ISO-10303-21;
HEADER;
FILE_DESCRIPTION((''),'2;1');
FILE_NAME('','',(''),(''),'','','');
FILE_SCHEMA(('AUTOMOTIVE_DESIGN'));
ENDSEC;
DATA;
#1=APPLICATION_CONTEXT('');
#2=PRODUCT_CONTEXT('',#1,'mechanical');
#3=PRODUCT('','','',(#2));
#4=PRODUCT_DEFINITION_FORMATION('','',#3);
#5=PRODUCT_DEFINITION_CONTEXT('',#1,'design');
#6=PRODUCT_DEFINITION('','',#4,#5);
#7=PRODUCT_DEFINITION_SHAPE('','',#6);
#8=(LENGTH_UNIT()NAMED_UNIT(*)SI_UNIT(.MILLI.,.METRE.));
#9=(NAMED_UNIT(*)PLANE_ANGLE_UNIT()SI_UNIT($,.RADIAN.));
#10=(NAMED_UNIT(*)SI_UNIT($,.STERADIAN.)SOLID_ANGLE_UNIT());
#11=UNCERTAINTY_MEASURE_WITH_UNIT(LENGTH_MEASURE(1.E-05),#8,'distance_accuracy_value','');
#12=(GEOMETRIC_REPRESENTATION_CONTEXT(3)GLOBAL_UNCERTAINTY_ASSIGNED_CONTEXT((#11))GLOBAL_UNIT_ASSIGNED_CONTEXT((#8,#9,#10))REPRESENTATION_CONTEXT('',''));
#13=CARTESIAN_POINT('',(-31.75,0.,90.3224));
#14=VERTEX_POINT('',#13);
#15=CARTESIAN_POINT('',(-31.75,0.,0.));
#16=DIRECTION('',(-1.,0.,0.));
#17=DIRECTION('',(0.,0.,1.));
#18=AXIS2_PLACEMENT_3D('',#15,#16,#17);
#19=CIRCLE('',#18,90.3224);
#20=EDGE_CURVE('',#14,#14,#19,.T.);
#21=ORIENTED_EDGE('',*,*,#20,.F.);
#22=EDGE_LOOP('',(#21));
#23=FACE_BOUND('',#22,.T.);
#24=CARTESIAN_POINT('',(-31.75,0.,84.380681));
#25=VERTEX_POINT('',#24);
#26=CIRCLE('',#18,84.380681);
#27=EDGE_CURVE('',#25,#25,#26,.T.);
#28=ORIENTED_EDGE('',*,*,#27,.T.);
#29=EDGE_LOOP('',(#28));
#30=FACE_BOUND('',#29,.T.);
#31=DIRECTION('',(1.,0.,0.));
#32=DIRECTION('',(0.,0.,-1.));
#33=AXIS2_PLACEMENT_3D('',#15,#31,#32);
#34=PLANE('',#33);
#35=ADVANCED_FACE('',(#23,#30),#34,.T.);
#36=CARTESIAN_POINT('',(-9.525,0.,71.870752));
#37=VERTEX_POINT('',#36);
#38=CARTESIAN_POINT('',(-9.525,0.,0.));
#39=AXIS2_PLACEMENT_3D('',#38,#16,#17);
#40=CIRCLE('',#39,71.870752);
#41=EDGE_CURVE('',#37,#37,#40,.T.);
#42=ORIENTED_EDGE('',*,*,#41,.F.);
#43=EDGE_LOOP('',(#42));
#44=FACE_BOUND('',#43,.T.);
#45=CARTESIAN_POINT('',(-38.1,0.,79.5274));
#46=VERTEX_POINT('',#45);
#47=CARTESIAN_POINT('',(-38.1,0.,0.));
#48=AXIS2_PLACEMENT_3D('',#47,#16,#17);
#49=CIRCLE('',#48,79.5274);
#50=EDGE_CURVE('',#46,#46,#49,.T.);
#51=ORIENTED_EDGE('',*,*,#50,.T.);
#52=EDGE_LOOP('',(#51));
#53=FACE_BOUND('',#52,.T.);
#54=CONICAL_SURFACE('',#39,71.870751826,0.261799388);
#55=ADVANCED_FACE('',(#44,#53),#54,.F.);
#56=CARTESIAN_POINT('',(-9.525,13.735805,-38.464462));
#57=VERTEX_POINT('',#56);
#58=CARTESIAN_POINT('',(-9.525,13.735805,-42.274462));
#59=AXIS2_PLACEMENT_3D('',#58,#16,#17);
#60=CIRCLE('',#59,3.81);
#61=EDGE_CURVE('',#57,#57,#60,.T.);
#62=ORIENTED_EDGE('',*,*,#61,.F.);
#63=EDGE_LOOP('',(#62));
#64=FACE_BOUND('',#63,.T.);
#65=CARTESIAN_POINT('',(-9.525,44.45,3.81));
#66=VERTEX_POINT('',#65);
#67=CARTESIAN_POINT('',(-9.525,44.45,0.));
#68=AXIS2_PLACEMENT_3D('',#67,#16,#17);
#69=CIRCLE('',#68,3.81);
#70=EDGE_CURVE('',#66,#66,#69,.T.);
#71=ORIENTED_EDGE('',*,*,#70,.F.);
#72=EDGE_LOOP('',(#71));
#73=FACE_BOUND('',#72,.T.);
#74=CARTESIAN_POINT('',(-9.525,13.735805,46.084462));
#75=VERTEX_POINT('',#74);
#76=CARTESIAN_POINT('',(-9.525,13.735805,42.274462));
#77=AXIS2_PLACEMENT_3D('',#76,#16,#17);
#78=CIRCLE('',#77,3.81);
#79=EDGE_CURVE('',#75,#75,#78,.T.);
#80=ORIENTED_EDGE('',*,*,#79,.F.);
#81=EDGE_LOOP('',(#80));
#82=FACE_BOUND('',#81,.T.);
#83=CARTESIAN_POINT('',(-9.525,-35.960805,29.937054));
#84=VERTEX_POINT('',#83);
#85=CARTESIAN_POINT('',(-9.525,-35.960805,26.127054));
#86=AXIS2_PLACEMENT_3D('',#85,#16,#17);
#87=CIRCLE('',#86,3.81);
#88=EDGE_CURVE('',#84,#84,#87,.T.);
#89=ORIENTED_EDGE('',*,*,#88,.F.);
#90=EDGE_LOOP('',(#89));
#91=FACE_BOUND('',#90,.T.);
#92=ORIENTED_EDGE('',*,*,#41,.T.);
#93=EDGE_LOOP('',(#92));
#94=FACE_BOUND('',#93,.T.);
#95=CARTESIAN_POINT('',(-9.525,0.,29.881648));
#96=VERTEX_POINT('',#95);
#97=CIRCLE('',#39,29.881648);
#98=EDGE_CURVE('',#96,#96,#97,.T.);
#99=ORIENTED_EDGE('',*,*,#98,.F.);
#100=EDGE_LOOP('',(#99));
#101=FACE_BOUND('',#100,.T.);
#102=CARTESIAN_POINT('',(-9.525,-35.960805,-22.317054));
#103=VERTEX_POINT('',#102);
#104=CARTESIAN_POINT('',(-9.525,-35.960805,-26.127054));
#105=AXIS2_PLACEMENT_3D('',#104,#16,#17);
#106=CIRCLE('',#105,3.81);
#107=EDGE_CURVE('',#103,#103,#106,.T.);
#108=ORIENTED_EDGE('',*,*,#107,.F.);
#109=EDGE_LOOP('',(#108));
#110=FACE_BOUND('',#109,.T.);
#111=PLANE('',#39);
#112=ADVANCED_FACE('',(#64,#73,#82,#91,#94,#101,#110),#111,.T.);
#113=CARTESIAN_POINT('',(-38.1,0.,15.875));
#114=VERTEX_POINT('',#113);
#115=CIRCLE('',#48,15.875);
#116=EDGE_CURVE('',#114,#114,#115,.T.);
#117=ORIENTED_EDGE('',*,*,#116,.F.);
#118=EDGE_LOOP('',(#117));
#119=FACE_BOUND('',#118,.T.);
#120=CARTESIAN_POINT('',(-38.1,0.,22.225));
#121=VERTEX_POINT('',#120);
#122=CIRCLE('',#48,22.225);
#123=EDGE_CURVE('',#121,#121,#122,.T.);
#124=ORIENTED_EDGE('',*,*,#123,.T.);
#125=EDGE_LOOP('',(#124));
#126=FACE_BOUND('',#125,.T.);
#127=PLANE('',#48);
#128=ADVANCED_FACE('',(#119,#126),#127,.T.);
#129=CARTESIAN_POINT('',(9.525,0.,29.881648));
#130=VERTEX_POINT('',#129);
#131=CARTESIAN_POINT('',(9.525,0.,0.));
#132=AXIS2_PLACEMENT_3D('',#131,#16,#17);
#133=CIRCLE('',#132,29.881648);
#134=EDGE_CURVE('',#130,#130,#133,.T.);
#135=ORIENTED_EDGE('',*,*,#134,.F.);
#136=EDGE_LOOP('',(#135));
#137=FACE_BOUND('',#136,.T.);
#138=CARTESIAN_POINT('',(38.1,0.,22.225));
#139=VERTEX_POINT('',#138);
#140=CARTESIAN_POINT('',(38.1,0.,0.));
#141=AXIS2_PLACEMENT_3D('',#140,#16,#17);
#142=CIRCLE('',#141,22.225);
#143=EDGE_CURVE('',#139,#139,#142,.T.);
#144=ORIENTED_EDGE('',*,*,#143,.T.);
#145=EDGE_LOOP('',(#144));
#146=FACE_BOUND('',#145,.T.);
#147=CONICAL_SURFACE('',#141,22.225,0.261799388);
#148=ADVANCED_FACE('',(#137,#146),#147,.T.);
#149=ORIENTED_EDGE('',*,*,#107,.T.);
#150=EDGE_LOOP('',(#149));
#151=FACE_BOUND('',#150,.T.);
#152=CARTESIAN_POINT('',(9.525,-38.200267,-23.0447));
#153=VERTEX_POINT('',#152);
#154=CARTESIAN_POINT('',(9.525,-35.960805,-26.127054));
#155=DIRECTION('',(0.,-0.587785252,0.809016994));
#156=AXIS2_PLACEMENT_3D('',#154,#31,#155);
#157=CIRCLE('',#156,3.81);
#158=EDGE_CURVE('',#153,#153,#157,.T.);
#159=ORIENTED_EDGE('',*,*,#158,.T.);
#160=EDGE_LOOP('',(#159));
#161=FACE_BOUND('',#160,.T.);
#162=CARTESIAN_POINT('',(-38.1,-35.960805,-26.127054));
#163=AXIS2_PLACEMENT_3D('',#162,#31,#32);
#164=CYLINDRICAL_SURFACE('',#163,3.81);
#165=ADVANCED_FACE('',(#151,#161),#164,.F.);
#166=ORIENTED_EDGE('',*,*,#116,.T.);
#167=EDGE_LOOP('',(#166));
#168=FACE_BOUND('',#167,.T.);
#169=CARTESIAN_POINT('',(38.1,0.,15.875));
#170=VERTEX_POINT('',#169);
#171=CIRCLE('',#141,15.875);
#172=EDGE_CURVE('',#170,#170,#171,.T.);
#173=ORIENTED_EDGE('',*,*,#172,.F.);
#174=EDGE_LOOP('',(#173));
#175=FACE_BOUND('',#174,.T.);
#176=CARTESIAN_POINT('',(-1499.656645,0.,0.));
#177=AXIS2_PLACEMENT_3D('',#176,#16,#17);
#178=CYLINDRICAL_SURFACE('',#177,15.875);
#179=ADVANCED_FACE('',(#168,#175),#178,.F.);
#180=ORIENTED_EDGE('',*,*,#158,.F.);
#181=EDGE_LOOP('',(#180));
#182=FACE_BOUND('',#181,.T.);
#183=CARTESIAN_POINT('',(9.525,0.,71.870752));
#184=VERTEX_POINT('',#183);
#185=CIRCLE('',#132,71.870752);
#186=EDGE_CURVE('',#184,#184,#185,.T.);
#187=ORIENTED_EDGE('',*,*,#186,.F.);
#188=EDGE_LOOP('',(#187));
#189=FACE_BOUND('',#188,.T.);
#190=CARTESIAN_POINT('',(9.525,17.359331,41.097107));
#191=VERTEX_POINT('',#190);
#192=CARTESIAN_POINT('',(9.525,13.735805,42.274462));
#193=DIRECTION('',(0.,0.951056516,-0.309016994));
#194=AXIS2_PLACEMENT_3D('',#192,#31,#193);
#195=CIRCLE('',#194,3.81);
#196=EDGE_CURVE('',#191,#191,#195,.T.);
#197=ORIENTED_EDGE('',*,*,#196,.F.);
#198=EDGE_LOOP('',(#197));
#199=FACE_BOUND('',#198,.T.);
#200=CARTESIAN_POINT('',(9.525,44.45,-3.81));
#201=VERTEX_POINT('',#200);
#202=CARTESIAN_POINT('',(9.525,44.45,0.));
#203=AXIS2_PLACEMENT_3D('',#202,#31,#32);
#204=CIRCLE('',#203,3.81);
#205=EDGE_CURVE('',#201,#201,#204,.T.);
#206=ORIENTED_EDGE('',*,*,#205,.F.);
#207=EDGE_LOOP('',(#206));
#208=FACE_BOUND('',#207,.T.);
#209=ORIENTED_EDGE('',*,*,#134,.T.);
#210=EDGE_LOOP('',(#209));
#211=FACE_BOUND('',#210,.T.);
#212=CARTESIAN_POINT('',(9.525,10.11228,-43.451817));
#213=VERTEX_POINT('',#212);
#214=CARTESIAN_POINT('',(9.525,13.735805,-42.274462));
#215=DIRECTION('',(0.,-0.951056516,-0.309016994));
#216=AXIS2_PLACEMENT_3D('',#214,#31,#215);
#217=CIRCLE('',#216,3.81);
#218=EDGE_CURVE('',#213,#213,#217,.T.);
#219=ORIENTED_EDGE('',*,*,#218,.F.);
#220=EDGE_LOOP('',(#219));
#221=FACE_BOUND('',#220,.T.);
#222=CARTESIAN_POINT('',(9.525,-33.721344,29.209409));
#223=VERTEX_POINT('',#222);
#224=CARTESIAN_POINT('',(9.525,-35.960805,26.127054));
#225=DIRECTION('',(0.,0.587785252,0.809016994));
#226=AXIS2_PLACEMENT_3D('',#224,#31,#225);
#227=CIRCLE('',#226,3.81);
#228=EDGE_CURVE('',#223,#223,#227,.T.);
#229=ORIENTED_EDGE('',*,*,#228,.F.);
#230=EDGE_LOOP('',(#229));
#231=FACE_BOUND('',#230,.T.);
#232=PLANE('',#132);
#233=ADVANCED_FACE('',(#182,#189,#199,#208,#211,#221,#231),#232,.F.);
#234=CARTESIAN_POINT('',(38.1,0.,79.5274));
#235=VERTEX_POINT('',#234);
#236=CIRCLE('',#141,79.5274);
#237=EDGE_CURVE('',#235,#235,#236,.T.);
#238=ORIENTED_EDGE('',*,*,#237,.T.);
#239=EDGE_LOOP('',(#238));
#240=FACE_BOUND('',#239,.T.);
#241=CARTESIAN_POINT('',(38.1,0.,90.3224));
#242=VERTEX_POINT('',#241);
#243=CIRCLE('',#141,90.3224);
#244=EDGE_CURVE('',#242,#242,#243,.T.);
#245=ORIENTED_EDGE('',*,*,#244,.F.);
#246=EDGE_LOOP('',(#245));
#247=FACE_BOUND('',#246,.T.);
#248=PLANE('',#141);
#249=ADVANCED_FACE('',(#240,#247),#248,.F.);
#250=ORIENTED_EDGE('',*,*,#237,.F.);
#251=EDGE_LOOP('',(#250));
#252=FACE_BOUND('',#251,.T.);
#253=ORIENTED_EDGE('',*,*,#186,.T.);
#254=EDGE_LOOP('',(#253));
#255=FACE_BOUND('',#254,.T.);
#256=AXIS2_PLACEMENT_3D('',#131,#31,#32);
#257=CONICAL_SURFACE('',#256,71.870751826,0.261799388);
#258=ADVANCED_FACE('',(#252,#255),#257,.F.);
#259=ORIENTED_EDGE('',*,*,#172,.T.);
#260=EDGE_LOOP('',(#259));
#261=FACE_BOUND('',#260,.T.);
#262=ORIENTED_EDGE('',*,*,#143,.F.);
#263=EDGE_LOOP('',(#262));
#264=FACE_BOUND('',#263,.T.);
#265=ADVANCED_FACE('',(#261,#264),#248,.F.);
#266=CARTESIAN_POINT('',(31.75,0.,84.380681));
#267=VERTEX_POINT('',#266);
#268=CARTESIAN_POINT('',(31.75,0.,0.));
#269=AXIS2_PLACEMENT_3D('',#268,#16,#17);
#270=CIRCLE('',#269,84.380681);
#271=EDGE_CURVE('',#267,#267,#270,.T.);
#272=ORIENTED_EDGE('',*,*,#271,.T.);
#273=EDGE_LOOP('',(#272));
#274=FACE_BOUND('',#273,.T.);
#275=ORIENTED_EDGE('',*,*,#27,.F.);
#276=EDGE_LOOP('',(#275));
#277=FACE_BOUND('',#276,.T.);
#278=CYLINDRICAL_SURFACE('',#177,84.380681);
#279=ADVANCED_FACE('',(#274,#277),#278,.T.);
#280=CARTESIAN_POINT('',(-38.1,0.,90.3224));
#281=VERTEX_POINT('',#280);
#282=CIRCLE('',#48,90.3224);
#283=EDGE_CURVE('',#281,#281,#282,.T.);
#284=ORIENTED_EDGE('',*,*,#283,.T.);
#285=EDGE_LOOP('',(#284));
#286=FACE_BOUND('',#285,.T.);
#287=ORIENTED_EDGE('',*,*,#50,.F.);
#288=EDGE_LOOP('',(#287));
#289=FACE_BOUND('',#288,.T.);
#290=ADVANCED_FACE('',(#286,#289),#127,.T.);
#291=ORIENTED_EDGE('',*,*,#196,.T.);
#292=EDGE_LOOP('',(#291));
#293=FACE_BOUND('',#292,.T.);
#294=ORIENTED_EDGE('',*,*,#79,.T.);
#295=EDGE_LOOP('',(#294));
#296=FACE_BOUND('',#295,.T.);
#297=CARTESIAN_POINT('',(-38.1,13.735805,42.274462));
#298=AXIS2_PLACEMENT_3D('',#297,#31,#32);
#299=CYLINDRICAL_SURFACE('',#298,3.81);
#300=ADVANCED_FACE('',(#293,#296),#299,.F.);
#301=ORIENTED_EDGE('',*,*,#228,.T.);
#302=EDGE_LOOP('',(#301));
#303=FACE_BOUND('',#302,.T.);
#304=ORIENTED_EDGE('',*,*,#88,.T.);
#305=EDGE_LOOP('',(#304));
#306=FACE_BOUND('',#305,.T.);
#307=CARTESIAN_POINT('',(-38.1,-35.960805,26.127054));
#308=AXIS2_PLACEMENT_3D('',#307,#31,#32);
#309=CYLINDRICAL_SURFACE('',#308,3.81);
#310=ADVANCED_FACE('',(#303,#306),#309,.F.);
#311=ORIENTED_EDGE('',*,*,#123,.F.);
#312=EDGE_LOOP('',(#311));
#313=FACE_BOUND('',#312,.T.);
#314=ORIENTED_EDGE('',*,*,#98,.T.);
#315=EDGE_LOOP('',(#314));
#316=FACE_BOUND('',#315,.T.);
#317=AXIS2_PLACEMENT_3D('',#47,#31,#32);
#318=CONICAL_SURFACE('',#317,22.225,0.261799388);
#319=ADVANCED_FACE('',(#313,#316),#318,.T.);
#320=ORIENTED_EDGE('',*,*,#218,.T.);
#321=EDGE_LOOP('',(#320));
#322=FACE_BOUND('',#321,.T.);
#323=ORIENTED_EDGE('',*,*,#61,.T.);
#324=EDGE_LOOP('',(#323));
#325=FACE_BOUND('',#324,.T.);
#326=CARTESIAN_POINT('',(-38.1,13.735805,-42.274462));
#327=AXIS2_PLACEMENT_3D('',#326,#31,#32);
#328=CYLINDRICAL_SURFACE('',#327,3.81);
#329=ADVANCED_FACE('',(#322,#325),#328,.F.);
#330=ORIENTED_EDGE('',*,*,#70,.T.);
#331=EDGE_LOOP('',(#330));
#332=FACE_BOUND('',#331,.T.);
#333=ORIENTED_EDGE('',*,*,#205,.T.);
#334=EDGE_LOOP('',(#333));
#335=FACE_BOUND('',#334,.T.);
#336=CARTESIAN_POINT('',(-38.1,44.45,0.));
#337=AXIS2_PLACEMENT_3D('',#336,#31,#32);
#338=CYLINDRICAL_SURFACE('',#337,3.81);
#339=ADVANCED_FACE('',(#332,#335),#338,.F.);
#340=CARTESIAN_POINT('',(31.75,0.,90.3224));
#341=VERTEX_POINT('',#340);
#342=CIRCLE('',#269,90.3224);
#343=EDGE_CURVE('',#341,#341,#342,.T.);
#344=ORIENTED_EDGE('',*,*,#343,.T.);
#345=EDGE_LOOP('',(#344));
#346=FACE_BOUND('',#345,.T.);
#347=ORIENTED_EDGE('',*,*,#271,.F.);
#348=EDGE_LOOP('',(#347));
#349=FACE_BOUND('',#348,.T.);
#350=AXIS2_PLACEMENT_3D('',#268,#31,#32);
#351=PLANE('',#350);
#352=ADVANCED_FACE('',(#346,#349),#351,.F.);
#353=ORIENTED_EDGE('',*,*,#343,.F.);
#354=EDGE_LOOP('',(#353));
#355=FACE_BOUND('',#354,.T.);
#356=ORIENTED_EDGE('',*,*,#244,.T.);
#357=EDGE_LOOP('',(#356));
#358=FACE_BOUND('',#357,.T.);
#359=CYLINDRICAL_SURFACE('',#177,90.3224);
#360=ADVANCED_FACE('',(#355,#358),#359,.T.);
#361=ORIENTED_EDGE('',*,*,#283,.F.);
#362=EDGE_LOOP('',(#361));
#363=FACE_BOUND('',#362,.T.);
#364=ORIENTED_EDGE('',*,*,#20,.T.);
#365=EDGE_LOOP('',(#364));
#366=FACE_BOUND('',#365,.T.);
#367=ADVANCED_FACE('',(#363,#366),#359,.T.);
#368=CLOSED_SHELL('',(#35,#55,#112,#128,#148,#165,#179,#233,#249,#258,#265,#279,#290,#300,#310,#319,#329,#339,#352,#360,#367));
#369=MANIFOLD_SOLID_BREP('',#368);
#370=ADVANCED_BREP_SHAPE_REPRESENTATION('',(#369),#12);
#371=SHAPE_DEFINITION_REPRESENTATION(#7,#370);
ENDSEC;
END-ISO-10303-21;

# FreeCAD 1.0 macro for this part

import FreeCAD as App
import Part
import Sketcher
Q = App.Units.Quantity

doc = App.newDocument("Part")
body = doc.addObject("PartDesign::Body", "Body")

# Sketch on XY plane
sketch1 = body.newObject("Sketcher::SketchObject", "Sketch")
sketch1.AttachmentSupport = (doc.getObject("XY_Plane"), [""])
sketch1.MapMode = "FlatFace"
sketch1.addGeometry([
    Part.LineSegment(App.Vector(38, 90, 0), App.Vector(32, 90, 0)),  # 0
    Part.LineSegment(App.Vector(32, 90, 0), App.Vector(32, 84, 0)),  # 1
    Part.LineSegment(App.Vector(32, 84, 0), App.Vector(-32, 84, 0)),  # 2
    Part.LineSegment(App.Vector(-32, 84, 0), App.Vector(-32, 90, 0)),  # 3
    Part.LineSegment(App.Vector(-32, 90, 0), App.Vector(-38, 90, 0)),  # 4
    Part.LineSegment(App.Vector(-38, 90, 0), App.Vector(-38, 80, 0)),  # 5
    Part.LineSegment(App.Vector(-38, 80, 0), App.Vector(-10, 72, 0)),  # 6
    Part.LineSegment(App.Vector(-10, 72, 0), App.Vector(-10, 30, 0)),  # 7
    Part.LineSegment(App.Vector(-10, 30, 0), App.Vector(-38, 22, 0)),  # 8
    Part.LineSegment(App.Vector(-38, 22, 0), App.Vector(-38, 16, 0)),  # 9
    Part.LineSegment(App.Vector(-38, 16, 0), App.Vector(38, 16, 0)),  # 10
    Part.LineSegment(App.Vector(38, 16, 0), App.Vector(38, 22, 0)),  # 11
    Part.LineSegment(App.Vector(38, 22, 0), App.Vector(10, 30, 0)),  # 12
    Part.LineSegment(App.Vector(10, 30, 0), App.Vector(10, 72, 0)),  # 13
    Part.LineSegment(App.Vector(10, 72, 0), App.Vector(38, 80, 0)),  # 14
    Part.LineSegment(App.Vector(38, 80, 0), App.Vector(38, 90, 0)),  # 15
], False)
sketch1.addConstraint([
    Sketcher.Constraint("Coincident", 0, 2, 1, 1),
    Sketcher.Constraint("Coincident", 1, 2, 2, 1),
    Sketcher.Constraint("Coincident", 2, 2, 3, 1),
    Sketcher.Constraint("Coincident", 3, 2, 4, 1),
    Sketcher.Constraint("Coincident", 4, 2, 5, 1),
    Sketcher.Constraint("Coincident", 5, 2, 6, 1),
    Sketcher.Constraint("Coincident", 6, 2, 7, 1),
    Sketcher.Constraint("Coincident", 7, 2, 8, 1),
    Sketcher.Constraint("Coincident", 8, 2, 9, 1),
    Sketcher.Constraint("Coincident", 9, 2, 10, 1),
    Sketcher.Constraint("Coincident", 10, 2, 11, 1),
    Sketcher.Constraint("Coincident", 11, 2, 12, 1),
    Sketcher.Constraint("Coincident", 12, 2, 13, 1),
    Sketcher.Constraint("Coincident", 13, 2, 14, 1),
    Sketcher.Constraint("Coincident", 14, 2, 15, 1),
    Sketcher.Constraint("Coincident", 15, 2, 0, 1),
    Sketcher.Constraint("Horizontal", 0),
    Sketcher.Constraint("Vertical", 1),
    Sketcher.Constraint("Horizontal", 2),
    Sketcher.Constraint("Vertical", 3),
    Sketcher.Constraint("Horizontal", 4),
    Sketcher.Constraint("Vertical", 5),
    Sketcher.Constraint("Vertical", 7),
    Sketcher.Constraint("Vertical", 9),
    Sketcher.Constraint("Horizontal", 10),
    Sketcher.Constraint("Vertical", 11),
    Sketcher.Constraint("Vertical", 13),
    Sketcher.Constraint("Vertical", 15),
    Sketcher.Constraint("Symmetric", 0, 2, 3, 2, -2),
    Sketcher.Constraint("Symmetric", 8, 2, 11, 2, -2),
    Sketcher.Constraint("Symmetric", 7, 2, 12, 2, -2),
    Sketcher.Constraint("Symmetric", 5, 2, 14, 2, -2),
    Sketcher.Constraint("Parallel", 6, 12),
    Sketcher.Constraint("Parallel", 8, 14),
    Sketcher.Constraint("Vertical", 5, 2, 8, 2),
    Sketcher.Constraint("Equal", 4, 9),
    Sketcher.Constraint("DistanceX", 10, 1, 10, 2, Q("3 in")),
    Sketcher.Constraint("DistanceX", 2, 2, 2, 1, Q("2.5 in")),
    Sketcher.Constraint("Angle", 6, Q("-15 deg")),
    Sketcher.Constraint("DistanceY", 5, 2, 5, 1, Q("0.425 in")),
    Sketcher.Constraint("DistanceX", 7, 2, 12, 2, Q("0.75 in")),
    Sketcher.Constraint("DistanceY", -1, 1, 0, 2, Q("3.556 in")),
    Sketcher.Constraint("DistanceY", -1, 1, 8, 2, Q("0.875 in")),
    Sketcher.Constraint("DistanceY", 1, 2, 1, 1, 5.941719),
])
revolution = body.newObject("PartDesign::Revolution", "Revolution")
revolution.Profile = sketch1
revolution.ReferenceAxis = (sketch1, ["H_Axis"])
revolution.Angle = 360

# Sketch on YZ plane
sketch2 = body.newObject("Sketcher::SketchObject", "Sketch001")
sketch2.AttachmentSupport = (doc.getObject("YZ_Plane"), [""])
sketch2.MapMode = "FlatFace"
sketch2.AttachmentOffset = App.Placement(App.Vector(0, 0, 0.375 * 25.4), App.Rotation())
sketch2.addGeometry(Part.Circle(App.Vector(44.5, 0, 0), App.Vector(0, 0, 1), 3.8), False)
sketch2.addConstraint([
    Sketcher.Constraint("PointOnObject", 0, 3, -1),
    Sketcher.Constraint("Diameter", 0, Q("0.3 in")),
    Sketcher.Constraint("DistanceX", -1, 1, 0, 3, Q("1.75 in")),
])
pocket1 = body.newObject("PartDesign::Pocket", "Pocket")
pocket1.Profile = sketch2
pocket1.Type = "ThroughAll"
doc.recompute()

polarpattern = body.newObject("PartDesign::PolarPattern", "PolarPattern")
polarpattern.Originals = [pocket1]
polarpattern.Axis = (doc.getObject("X_Axis"), [""])
polarpattern.Angle = 360
polarpattern.Occurrences = 5
body.Tip = polarpattern

doc.recompute()
